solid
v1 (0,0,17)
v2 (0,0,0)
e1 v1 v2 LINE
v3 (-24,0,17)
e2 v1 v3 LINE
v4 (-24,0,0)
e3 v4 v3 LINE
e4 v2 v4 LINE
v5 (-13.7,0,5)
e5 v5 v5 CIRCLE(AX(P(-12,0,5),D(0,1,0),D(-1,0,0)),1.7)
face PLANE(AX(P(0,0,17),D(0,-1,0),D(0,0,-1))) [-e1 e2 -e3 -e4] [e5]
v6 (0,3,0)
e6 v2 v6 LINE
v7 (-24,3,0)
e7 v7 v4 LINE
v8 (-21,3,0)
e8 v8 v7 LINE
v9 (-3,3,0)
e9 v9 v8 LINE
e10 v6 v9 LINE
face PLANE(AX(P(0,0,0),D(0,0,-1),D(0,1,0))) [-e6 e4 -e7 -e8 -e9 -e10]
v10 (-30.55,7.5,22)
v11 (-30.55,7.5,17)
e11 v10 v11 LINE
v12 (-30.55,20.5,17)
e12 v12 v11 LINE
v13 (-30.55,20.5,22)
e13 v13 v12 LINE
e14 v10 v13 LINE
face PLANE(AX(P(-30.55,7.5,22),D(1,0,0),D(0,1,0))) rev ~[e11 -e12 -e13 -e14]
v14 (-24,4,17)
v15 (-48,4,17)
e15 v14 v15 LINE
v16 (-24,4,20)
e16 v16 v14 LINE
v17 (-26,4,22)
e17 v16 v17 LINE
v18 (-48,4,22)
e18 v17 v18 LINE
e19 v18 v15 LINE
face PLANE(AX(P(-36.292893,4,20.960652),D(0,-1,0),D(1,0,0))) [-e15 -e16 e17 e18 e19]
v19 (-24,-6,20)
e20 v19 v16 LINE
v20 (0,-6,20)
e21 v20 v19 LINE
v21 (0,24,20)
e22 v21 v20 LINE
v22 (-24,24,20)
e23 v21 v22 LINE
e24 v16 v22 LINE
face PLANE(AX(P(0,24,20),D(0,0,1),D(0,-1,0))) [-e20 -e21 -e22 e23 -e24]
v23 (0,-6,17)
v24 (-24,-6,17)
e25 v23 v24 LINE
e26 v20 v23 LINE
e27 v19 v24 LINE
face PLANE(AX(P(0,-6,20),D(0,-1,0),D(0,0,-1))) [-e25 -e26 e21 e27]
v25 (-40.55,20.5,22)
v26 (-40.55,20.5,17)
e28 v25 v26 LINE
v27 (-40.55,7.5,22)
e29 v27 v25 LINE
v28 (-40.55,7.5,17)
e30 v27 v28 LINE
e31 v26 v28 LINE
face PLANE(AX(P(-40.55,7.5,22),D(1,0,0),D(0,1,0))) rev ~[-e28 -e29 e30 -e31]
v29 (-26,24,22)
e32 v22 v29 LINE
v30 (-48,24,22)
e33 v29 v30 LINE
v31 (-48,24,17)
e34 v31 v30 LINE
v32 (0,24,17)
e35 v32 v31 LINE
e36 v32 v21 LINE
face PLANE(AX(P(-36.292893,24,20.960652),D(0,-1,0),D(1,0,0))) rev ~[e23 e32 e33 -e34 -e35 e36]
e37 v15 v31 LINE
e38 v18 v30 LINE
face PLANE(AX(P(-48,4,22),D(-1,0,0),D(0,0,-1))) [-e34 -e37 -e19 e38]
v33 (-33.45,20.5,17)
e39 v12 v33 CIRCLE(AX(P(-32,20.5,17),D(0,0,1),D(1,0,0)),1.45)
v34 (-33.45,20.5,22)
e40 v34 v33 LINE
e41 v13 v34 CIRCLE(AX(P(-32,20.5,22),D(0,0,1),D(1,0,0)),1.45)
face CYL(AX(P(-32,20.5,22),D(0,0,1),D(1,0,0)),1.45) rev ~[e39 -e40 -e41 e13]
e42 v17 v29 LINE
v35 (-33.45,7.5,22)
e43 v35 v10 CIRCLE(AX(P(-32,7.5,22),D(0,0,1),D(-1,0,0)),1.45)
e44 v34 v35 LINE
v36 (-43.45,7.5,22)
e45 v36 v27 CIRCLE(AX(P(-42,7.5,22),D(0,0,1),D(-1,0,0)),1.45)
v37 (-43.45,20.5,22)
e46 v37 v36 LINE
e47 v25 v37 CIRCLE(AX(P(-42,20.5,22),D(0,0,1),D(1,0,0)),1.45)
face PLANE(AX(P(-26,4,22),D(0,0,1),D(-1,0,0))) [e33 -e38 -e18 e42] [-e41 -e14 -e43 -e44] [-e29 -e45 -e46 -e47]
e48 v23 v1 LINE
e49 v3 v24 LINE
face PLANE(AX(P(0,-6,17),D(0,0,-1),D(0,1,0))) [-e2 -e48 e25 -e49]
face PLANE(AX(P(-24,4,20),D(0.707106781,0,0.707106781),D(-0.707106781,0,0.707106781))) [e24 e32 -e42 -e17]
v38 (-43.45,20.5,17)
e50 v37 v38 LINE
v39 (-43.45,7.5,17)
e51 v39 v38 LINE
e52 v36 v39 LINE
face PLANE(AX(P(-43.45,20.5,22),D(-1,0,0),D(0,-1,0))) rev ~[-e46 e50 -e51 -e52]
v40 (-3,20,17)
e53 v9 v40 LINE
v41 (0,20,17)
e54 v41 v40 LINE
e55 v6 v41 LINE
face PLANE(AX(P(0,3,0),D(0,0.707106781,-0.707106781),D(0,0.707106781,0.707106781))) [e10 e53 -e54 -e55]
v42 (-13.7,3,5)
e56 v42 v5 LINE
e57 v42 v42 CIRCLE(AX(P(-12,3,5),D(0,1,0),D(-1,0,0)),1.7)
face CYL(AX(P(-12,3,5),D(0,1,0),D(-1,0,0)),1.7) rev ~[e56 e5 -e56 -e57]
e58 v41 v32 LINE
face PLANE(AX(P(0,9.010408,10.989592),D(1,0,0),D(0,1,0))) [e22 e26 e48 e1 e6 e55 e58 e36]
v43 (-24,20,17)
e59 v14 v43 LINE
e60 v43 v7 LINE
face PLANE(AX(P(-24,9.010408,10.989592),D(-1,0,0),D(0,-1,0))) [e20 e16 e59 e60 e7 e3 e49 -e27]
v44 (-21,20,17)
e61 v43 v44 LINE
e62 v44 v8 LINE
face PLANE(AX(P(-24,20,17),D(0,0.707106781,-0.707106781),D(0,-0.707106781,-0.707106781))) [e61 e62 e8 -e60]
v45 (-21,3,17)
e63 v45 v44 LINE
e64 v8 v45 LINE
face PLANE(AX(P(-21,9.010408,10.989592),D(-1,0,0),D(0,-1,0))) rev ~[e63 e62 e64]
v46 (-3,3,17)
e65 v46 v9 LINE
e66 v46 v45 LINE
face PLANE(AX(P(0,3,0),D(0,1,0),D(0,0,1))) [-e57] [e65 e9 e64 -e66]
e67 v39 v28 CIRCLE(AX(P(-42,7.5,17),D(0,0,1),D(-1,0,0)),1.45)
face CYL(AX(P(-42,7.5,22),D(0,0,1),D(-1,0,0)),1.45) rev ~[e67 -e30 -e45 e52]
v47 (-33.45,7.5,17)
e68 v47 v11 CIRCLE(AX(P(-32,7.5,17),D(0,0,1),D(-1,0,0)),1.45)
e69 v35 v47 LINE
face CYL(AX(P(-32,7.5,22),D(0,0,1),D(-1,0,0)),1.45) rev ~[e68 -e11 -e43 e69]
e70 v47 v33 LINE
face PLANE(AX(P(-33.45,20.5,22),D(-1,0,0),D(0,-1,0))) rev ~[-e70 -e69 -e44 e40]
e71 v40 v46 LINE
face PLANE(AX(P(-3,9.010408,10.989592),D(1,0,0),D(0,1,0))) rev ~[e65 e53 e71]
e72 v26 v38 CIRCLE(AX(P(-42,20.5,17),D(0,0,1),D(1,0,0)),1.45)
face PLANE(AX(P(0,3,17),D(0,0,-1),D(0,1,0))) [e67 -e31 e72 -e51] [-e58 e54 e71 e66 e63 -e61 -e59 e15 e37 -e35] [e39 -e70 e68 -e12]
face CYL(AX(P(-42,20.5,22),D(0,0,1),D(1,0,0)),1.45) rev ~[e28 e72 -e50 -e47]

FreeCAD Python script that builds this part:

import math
import FreeCAD as App
import Part
import Sketcher
from FreeCAD import Vector
Q = App.Units.Quantity


def add_polygon(sketch, points):
    """Adds a closed chain of lines whose ends are joined by coincident constraints."""
    first, n = sketch.GeometryCount, len(points)
    for a, b in zip(points, points[1:] + points[:1]):
        sketch.addGeometry(Part.LineSegment(App.Vector(*a, 0), App.Vector(*b, 0)), False)
    for i in range(n):
        sketch.addConstraint(Sketcher.Constraint("Coincident", first + i, 2, first + (i + 1) % n, 1))

doc = App.newDocument("Part")
params = doc.addObject("Spreadsheet::Sheet", "Params")
for row, (alias, value) in enumerate([
    ("sketch1_width", "30 mm"),
    ("sketch1_width2", "6 mm"),
    ("sketch1_width3", "3 mm"),
    ("sketch1_height", "17 mm"),
    ("pad1_length", "48 mm"),
    ("sketch2_width", "17 mm"),
    ("pad2_length", "3 mm"),
    ("sketch3_width", "24 mm"),
    ("sketch3_height", "10 mm"),
    ("pocket1_length", "25 mm"),
    ("sketch4_width", "17 mm"),
    ("pad3_length", "3 mm"),
    ("sketch5_diameter", "3.4 mm"),
    ("sketch6_width", "24 mm"),
    ("sketch6_width2", "22 mm"),
    ("sketch6_height", "2 mm"),
    ("pad4_length", "20 mm"),
    ("sketch7_height", "13 mm"),
    ("sketch7_radius", "1.45 mm"),
], start=1):
    params.set(f"A{row}", alias)
    params.set(f"B{row}", "=" + value)
    params.setAlias(f"B{row}", alias)

body = doc.addObject("PartDesign::Body", "Body")

sketch1 = body.newObject("Sketcher::SketchObject", "Sketch")
sketch1.AttachmentSupport = (doc.getObject("YZ_Plane"), [""])
sketch1.MapMode = "FlatFace"
add_polygon(sketch1, [(24, 20), (-6, 20), (-6, 17), (0, 17), (0, 0), (3, 0), (3, 17), (24, 17)])
sketch1.addConstraint([
    Sketcher.Constraint("Horizontal", 0),
    Sketcher.Constraint("Vertical", 1),
    Sketcher.Constraint("Horizontal", 2),
    Sketcher.Constraint("Vertical", 3),
    Sketcher.Constraint("Horizontal", 4),
    Sketcher.Constraint("Vertical", 5),
    Sketcher.Constraint("Horizontal", 6),
    Sketcher.Constraint("Vertical", 7),
    Sketcher.Constraint("Coincident", 3, 2, -1, 1),
    Sketcher.Constraint("Horizontal", 2, 2, 5, 2),
    Sketcher.Constraint("Equal", 4, 1),
    Sketcher.Constraint("DistanceX", 0, 2, 0, 1, Q("30 mm")),
    Sketcher.Constraint("DistanceX", 2, 1, 2, 2, Q("6 mm")),
    Sketcher.Constraint("DistanceX", 4, 1, 4, 2, Q("3 mm")),
    Sketcher.Constraint("DistanceY", 3, 2, 3, 1, Q("17 mm")),
])
sketch1.setExpression("Constraints[19]", "Params.sketch1_width")
sketch1.setExpression("Constraints[20]", "Params.sketch1_width2")
sketch1.setExpression("Constraints[21]", "Params.sketch1_width3")
sketch1.setExpression("Constraints[22]", "Params.sketch1_height")
pad1 = body.newObject("PartDesign::Pad", "Pad")
pad1.Profile = sketch1
pad1.setExpression("Length", "Params.pad1_length")
pad1.Reversed = True

sketch2 = body.newObject("Sketcher::SketchObject", "Sketch001")
sketch2.AttachmentSupport = (doc.getObject("YZ_Plane"), [""])
sketch2.MapMode = "FlatFace"
add_polygon(sketch2, [(3, 0), (20, 17), (3, 17)])
sketch2.addConstraint([
    Sketcher.Constraint("Horizontal", 1),
    Sketcher.Constraint("Vertical", 2),
    Sketcher.Constraint("PointOnObject", 2, 2, -1),
    Sketcher.Constraint("Equal", 1, 2),
    Sketcher.Constraint("DistanceX", 1, 2, 1, 1, Q("17 mm")),
    Sketcher.Constraint("DistanceX", -1, 1, 0, 2, Q("20 mm")),
])
sketch2.setExpression("Constraints[7]", "Params.sketch2_width")
pad2 = body.newObject("PartDesign::Pad", "Pad001")
pad2.Profile = sketch2
pad2.setExpression("Length", "Params.pad2_length")
pad2.Reversed = True

sketch3 = body.newObject("Sketcher::SketchObject", "Sketch002")
sketch3.AttachmentSupport = (doc.getObject("XY_Plane"), [""])
sketch3.MapMode = "FlatFace"
sketch3.AttachmentOffset = App.Placement(Vector(0, 0, 20), App.Rotation())
add_polygon(sketch3, [(-48, 4), (-48, -6), (-24, -6), (-24, 4)])
sketch3.addConstraint([
    Sketcher.Constraint("Vertical", 0),
    Sketcher.Constraint("Horizontal", 1),
    Sketcher.Constraint("Vertical", 2),
    Sketcher.Constraint("Horizontal", 3),
    Sketcher.Constraint("DistanceX", 1, 1, 1, 2, Q("24 mm")),
    Sketcher.Constraint("DistanceY", 0, 2, 0, 1, Q("10 mm")),
    Sketcher.Constraint("DistanceX", 0, 2, -1, 1, Q("48 mm")),
    Sketcher.Constraint("DistanceY", 0, 2, -1, 1, Q("6 mm")),
])
sketch3.setExpression("Constraints[8]", "Params.sketch3_width")
sketch3.setExpression("Constraints[9]", "Params.sketch3_height")
pocket1 = body.newObject("PartDesign::Pocket", "Pocket")
pocket1.Profile = sketch3
pocket1.setExpression("Length", "Params.pocket1_length")

sketch4 = body.newObject("Sketcher::SketchObject", "Sketch003")
sketch4.AttachmentSupport = (doc.getObject("YZ_Plane"), [""])
sketch4.MapMode = "FlatFace"
sketch4.AttachmentOffset = App.Placement(Vector(0, 0, -24), App.Rotation())
add_polygon(sketch4, [(3, 0), (3, 17), (20, 17)])
sketch4.addConstraint([
    Sketcher.Constraint("Vertical", 0),
    Sketcher.Constraint("Horizontal", 1),
    Sketcher.Constraint("PointOnObject", 2, 2, -1),
    Sketcher.Constraint("Equal", 1, 0),
    Sketcher.Constraint("DistanceX", 1, 1, 1, 2, Q("17 mm")),
    Sketcher.Constraint("DistanceX", -1, 1, 0, 2, Q("3 mm")),
])
sketch4.setExpression("Constraints[7]", "Params.sketch4_width")
pad3 = body.newObject("PartDesign::Pad", "Pad002")
pad3.Profile = sketch4
pad3.setExpression("Length", "Params.pad3_length")

sketch5 = body.newObject("Sketcher::SketchObject", "Sketch004")
sketch5.AttachmentSupport = (doc.getObject("XZ_Plane"), [""])
sketch5.MapMode = "FlatFace"
sketch5.AttachmentOffset = App.Placement(Vector(0, 0, -3), App.Rotation())
sketch5.addGeometry(Part.Circle(Vector(-12, 5, 0), Vector(0, 0, 1), 1.7), False)
sketch5.addConstraint([
    Sketcher.Constraint("Diameter", 0, Q("3.4 mm")),
    Sketcher.Constraint("DistanceX", 0, 3, -1, 1, Q("12 mm")),
    Sketcher.Constraint("DistanceY", -1, 1, 0, 3, Q("5 mm")),
])
sketch5.setExpression("Constraints[0]", "Params.sketch5_diameter")
pocket2 = body.newObject("PartDesign::Pocket", "Pocket001")
pocket2.Profile = sketch5
pocket2.Type = "ThroughAll"
pocket2.Reversed = True

sketch6 = body.newObject("Sketcher::SketchObject", "Sketch005")
sketch6.AttachmentSupport = (doc.getObject("XZ_Plane"), [""])
sketch6.MapMode = "FlatFace"
sketch6.AttachmentOffset = App.Placement(Vector(0, 0, -4), App.Rotation())
add_polygon(sketch6, [(-48, 20), (-24, 20), (-26, 22), (-48, 22)])
sketch6.addConstraint([
    Sketcher.Constraint("Horizontal", 0),
    Sketcher.Constraint("Horizontal", 2),
    Sketcher.Constraint("Vertical", 3),
    Sketcher.Constraint("DistanceX", 0, 1, 0, 2, Q("24 mm")),
    Sketcher.Constraint("DistanceX", 2, 2, 2, 1, Q("22 mm")),
    Sketcher.Constraint("DistanceY", 3, 2, 3, 1, Q("2 mm")),
    Sketcher.Constraint("DistanceX", 0, 2, -1, 1, Q("24 mm")),
    Sketcher.Constraint("DistanceY", -1, 1, 0, 2, Q("20 mm")),
])
sketch6.setExpression("Constraints[7]", "Params.sketch6_width")
sketch6.setExpression("Constraints[8]", "Params.sketch6_width2")
sketch6.setExpression("Constraints[9]", "Params.sketch6_height")
pad4 = body.newObject("PartDesign::Pad", "Pad003")
pad4.Profile = sketch6
pad4.setExpression("Length", "Params.pad4_length")
pad4.Reversed = True

sketch7 = body.newObject("Sketcher::SketchObject", "Sketch006")
sketch7.AttachmentSupport = (doc.getObject("XY_Plane"), [""])
sketch7.MapMode = "FlatFace"
sketch7.AttachmentOffset = App.Placement(Vector(0, 0, 22), App.Rotation())
sketch7.addGeometry([
    Part.LineSegment(Vector(-40.5, 7.5, 0), Vector(-40.5, 20.5, 0)),
    Part.ArcOfCircle(Part.Circle(Vector(-42, 20.5, 0), Vector(0, 0, 1), 1.4), math.radians(0), math.radians(180)),
    Part.LineSegment(Vector(-43.5, 20.5, 0), Vector(-43.5, 7.5, 0)),
    Part.ArcOfCircle(Part.Circle(Vector(-42, 7.5, 0), Vector(0, 0, 1), 1.4), math.radians(180), math.radians(360)),
    Part.LineSegment(Vector(-30.6, 7.5, 0), Vector(-30.6, 20.5, 0)),
    Part.ArcOfCircle(Part.Circle(Vector(-32, 20.5, 0), Vector(0, 0, 1), 1.4), math.radians(0), math.radians(180)),
    Part.LineSegment(Vector(-33.5, 20.5, 0), Vector(-33.5, 7.5, 0)),
    Part.ArcOfCircle(Part.Circle(Vector(-32, 7.5, 0), Vector(0, 0, 1), 1.4), math.radians(180), math.radians(360)),
], False)
sketch7.addConstraint([
    Sketcher.Constraint("Tangent", 0, 2, 1, 1),
    Sketcher.Constraint("Tangent", 1, 2, 2, 1),
    Sketcher.Constraint("Tangent", 2, 2, 3, 1),
    Sketcher.Constraint("Tangent", 3, 2, 0, 1),
    Sketcher.Constraint("Tangent", 4, 2, 5, 1),
    Sketcher.Constraint("Tangent", 5, 2, 6, 1),
    Sketcher.Constraint("Tangent", 6, 2, 7, 1),
    Sketcher.Constraint("Tangent", 7, 2, 4, 1),
    Sketcher.Constraint("Vertical", 0),
    Sketcher.Constraint("Vertical", 2),
    Sketcher.Constraint("Vertical", 4),
    Sketcher.Constraint("Vertical", 6),
    Sketcher.Constraint("Equal", 3, 5),
    Sketcher.Constraint("Horizontal", 1, 3, 5, 3),
    Sketcher.Constraint("Horizontal", 3, 3, 7, 3),
    Sketcher.Constraint("DistanceY", 0, 1, 0, 2, Q("13 mm")),
    Sketcher.Constraint("Radius", 1, Q("1.45 mm")),
    Sketcher.Constraint("DistanceX", 1, 3, -1, 1, Q("42 mm")),
    Sketcher.Constraint("DistanceX", 5, 3, -1, 1, Q("32 mm")),
    Sketcher.Constraint("DistanceY", -1, 1, 1, 3, Q("20.5 mm")),
])
sketch7.setExpression("Constraints[15]", "Params.sketch7_height")
sketch7.setExpression("Constraints[16]", "Params.sketch7_radius")
pocket3 = body.newObject("PartDesign::Pocket", "Pocket002")
pocket3.Profile = sketch7
pocket3.Type = "ThroughAll"

doc.recompute()
